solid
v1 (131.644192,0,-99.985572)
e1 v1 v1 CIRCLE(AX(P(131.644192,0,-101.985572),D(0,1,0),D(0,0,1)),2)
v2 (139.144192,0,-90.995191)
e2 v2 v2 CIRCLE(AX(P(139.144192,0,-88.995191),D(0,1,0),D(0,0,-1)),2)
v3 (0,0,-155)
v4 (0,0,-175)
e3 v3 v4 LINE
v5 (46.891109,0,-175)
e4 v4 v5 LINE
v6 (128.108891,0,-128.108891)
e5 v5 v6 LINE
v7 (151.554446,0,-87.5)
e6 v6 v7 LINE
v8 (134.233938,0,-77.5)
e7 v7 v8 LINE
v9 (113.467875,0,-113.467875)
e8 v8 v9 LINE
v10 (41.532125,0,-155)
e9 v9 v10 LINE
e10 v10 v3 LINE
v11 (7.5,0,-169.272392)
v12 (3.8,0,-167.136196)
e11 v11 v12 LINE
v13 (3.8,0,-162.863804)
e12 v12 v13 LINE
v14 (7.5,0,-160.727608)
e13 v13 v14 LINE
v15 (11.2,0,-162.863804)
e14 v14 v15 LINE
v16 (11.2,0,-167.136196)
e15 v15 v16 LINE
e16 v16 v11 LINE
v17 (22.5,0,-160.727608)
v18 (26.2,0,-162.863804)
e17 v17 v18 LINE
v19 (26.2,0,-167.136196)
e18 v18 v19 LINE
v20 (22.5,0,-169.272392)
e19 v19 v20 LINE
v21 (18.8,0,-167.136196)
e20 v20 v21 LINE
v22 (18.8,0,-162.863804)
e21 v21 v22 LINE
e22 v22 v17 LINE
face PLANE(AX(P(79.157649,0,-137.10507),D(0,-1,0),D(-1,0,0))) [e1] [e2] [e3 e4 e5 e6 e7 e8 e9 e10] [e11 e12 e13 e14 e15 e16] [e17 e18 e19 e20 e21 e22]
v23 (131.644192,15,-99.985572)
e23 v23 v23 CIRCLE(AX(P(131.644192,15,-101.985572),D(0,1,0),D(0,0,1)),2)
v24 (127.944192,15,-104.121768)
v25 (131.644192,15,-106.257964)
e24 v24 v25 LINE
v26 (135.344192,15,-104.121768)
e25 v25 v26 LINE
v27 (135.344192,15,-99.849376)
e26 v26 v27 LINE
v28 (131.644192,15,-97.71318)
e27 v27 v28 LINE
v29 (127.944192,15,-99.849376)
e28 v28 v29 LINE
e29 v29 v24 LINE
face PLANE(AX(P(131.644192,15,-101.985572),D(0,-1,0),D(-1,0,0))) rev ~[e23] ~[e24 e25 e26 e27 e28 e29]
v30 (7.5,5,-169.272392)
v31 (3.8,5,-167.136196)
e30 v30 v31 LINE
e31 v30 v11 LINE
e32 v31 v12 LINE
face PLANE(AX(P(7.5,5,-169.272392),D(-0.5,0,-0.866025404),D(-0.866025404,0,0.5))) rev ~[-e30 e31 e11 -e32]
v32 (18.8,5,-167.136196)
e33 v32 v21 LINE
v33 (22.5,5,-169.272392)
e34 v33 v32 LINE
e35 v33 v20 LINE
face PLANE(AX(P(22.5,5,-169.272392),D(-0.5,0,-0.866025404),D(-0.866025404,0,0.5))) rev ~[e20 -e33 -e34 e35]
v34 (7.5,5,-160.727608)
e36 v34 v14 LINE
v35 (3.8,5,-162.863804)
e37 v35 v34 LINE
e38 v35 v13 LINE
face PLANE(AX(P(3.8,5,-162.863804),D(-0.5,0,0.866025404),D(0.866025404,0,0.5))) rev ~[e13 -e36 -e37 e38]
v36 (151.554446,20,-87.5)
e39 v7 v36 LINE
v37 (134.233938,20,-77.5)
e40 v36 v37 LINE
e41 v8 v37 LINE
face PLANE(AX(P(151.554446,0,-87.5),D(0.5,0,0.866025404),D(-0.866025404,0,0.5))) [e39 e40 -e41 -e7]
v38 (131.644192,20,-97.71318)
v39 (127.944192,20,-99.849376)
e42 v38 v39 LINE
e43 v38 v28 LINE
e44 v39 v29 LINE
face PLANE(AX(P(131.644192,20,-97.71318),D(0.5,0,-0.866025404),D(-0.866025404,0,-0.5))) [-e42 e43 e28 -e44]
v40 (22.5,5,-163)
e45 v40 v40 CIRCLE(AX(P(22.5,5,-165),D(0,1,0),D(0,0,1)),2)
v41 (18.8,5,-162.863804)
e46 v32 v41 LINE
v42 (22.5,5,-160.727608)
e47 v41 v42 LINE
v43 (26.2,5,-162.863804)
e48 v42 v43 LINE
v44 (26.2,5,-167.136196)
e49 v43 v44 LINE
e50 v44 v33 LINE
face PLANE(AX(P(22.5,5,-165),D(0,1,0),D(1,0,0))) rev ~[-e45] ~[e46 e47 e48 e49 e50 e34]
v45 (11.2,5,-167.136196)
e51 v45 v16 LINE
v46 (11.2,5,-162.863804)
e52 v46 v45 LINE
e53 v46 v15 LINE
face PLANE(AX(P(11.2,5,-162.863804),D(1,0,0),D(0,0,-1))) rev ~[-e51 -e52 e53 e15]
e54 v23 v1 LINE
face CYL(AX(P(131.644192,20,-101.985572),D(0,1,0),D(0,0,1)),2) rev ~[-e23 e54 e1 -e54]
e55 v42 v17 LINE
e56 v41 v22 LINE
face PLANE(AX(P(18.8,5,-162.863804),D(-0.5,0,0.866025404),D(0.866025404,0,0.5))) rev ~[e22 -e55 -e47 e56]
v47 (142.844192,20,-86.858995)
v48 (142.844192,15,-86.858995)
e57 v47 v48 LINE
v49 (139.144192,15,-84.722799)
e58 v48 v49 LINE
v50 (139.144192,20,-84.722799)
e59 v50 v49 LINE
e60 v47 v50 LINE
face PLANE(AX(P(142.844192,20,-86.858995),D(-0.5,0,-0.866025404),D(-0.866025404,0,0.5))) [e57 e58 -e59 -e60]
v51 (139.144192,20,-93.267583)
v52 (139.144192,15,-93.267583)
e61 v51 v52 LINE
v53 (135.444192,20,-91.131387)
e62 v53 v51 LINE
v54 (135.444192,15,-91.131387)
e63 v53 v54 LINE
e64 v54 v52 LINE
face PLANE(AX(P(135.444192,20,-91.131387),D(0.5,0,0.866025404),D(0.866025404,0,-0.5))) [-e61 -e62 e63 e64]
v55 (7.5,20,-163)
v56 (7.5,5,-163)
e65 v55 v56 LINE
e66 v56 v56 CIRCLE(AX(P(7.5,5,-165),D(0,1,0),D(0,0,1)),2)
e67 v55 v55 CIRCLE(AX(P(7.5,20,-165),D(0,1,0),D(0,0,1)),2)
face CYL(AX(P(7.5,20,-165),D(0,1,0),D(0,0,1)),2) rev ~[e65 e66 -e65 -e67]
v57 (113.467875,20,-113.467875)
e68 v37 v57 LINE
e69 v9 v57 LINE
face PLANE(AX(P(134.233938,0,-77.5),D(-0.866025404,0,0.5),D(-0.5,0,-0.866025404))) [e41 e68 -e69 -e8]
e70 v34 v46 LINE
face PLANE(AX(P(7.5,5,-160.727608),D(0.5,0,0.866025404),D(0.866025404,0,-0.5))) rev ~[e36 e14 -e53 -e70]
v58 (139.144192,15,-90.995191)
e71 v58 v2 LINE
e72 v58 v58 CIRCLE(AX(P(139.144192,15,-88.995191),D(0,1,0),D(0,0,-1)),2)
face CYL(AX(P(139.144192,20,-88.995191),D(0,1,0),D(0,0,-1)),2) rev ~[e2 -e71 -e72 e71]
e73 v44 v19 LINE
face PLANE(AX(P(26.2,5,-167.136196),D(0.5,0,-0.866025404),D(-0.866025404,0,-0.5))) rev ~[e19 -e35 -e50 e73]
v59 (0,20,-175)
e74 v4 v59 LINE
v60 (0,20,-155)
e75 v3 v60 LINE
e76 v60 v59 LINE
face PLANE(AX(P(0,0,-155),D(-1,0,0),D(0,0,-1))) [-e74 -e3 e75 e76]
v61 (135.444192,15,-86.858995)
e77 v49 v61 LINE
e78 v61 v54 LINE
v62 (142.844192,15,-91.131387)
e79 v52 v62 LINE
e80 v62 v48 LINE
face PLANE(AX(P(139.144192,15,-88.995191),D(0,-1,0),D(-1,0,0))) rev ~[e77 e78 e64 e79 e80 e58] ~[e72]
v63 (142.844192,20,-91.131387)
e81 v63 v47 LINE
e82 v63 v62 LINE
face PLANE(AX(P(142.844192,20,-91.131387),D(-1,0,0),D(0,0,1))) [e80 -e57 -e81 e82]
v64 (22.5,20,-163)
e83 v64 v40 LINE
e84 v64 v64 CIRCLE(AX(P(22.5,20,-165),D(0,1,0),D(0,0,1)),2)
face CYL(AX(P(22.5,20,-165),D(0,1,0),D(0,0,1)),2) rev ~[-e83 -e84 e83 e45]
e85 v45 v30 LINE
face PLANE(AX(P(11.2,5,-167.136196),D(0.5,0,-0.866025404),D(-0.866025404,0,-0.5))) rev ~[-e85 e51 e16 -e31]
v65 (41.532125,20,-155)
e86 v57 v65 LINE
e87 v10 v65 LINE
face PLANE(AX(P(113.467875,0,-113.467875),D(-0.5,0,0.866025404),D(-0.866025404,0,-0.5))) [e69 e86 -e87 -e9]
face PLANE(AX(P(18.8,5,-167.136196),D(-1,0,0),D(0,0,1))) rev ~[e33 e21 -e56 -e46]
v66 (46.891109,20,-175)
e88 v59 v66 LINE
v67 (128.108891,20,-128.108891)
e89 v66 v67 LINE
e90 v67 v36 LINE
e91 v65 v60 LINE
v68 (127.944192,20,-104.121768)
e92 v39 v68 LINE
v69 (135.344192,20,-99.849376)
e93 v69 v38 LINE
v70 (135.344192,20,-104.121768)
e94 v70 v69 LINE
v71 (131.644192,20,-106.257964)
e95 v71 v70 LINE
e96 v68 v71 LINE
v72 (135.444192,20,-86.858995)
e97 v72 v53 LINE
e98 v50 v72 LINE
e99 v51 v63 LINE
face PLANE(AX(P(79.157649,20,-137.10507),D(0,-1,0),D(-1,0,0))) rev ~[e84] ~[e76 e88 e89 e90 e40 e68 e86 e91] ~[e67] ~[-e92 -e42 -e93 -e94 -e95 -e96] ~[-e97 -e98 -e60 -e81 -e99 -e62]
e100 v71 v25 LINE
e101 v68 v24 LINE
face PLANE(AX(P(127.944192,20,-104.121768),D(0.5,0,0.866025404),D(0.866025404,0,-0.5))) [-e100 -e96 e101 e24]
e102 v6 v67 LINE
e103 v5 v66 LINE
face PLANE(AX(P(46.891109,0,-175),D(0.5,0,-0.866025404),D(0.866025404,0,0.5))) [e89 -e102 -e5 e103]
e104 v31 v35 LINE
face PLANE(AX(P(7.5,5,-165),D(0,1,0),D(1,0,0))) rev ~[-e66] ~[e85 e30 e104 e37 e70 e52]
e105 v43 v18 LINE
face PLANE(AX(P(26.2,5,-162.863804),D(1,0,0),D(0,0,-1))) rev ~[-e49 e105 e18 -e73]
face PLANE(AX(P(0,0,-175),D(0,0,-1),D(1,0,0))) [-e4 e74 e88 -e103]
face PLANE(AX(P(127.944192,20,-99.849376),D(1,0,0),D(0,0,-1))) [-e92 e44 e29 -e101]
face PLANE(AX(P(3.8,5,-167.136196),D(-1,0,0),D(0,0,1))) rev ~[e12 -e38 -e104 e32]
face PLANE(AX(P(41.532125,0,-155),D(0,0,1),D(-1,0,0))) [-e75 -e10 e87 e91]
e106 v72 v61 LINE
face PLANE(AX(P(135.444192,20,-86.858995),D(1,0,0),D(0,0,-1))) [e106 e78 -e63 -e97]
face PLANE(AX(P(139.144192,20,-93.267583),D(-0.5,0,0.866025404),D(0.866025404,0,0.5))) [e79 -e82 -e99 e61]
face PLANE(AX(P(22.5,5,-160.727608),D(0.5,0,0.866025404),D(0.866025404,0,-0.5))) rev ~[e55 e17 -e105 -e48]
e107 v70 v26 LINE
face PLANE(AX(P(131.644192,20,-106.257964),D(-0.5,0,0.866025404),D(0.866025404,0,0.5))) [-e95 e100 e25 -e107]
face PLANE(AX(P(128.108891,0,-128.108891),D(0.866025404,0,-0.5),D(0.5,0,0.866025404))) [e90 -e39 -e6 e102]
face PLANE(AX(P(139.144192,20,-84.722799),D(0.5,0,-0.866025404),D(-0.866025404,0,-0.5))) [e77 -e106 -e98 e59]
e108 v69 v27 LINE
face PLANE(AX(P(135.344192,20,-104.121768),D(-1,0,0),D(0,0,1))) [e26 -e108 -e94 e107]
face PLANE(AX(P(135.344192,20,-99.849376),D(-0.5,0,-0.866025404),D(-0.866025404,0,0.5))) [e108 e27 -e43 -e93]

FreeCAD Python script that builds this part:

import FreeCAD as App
import Part
import Sketcher

V = App.Vector
Q = App.Units.Quantity

doc = App.newDocument("Part")
body = doc.addObject("PartDesign::Body", "Body")

# Sketch on XZ plane
sketch1 = body.newObject("Sketcher::SketchObject", "Sketch")
sketch1.AttachmentSupport = (doc.getObject("XZ_Plane"), [""])
sketch1.MapMode = "FlatFace"
sketch1.addGeometry([
    Part.LineSegment(V(0, -175, 0), V(0, -155, 0)),  # 0
    Part.LineSegment(V(0, -155, 0), V(42, -155, 0)),  # 1
    Part.LineSegment(V(42, -155, 0), V(113, -113, 0)),  # 2
    Part.LineSegment(V(113, -113, 0), V(134, -78, 0)),  # 3
    Part.LineSegment(V(134, -78, 0), V(152, -88, 0)),  # 4
    Part.LineSegment(V(152, -88, 0), V(128, -128, 0)),  # 5
    Part.LineSegment(V(128, -128, 0), V(47, -175, 0)),  # 6
    Part.LineSegment(V(47, -175, 0), V(0, -175, 0)),  # 7
], False)
sketch1.addConstraint([
    Sketcher.Constraint("Coincident", 0, 2, 1, 1),
    Sketcher.Constraint("Coincident", 1, 2, 2, 1),
    Sketcher.Constraint("Coincident", 2, 2, 3, 1),
    Sketcher.Constraint("Coincident", 3, 2, 4, 1),
    Sketcher.Constraint("Coincident", 4, 2, 5, 1),
    Sketcher.Constraint("Coincident", 5, 2, 6, 1),
    Sketcher.Constraint("Coincident", 6, 2, 7, 1),
    Sketcher.Constraint("Coincident", 7, 2, 0, 1),
    Sketcher.Constraint("Vertical", 0),
    Sketcher.Constraint("Horizontal", 1),
    Sketcher.Constraint("Horizontal", 7),
    Sketcher.Constraint("PointOnObject", 0, 2, -2),
    Sketcher.Constraint("Perpendicular", 3, 4),
    Sketcher.Constraint("Perpendicular", 4, 5),
    Sketcher.Constraint("Parallel", 2, 6),
    Sketcher.Constraint("DistanceY", 0, 1, 0, 2, Q("20 mm")),
    Sketcher.Constraint("Angle", 2, Q("30 deg")),
    Sketcher.Constraint("Angle", 3, Q("60 deg")),
    Sketcher.Constraint("Distance", 4, Q("20 mm")),
    Sketcher.Constraint("DistanceY", 0, 2, -1, 1, Q("155 mm")),
    Sketcher.Constraint("DistanceY", 3, 2, -1, 1, Q("77.5 mm")),
    Sketcher.Constraint("DistanceX", 7, 2, 7, 1, Q("46.891109 mm")),
    Sketcher.Constraint("Distance", 2, Q("83.06425 mm")),
    Sketcher.Constraint("Distance", 5, Q("46.891109 mm")),
])
pad1 = body.newObject("PartDesign::Pad", "Pad")
pad1.Profile = sketch1
pad1.Length = 20
pad1.Reversed = True

# Sketch on XZ plane
sketch2 = body.newObject("Sketcher::SketchObject", "Sketch001")
sketch2.AttachmentSupport = (doc.getObject("XZ_Plane"), [""])
sketch2.MapMode = "FlatFace"
sketch2.AttachmentOffset = App.Placement(V(0, 0, -20), App.Rotation())
sketch2.addGeometry([
    Part.Circle(V(7.5, -165, 0), V(0, 0, 1), 2),
    Part.Circle(V(22.5, -165, 0), V(0, 0, 1), 2),
    Part.Circle(V(131.6, -102, 0), V(0, 0, 1), 2),
    Part.Circle(V(139.1, -89, 0), V(0, 0, 1), 2),
], False)
sketch2.addConstraint([
    Sketcher.Constraint("Equal", 0, 1),
    Sketcher.Constraint("Equal", 1, 2),
    Sketcher.Constraint("Equal", 2, 3),
    Sketcher.Constraint("Horizontal", 0, 3, 1, 3),
    Sketcher.Constraint("Diameter", 0, Q("4 mm")),
    Sketcher.Constraint("DistanceY", 0, 3, -1, 1, Q("165 mm")),
    Sketcher.Constraint("DistanceX", 0, 3, 1, 3, Q("15 mm")),
    Sketcher.Constraint("DistanceX", -1, 1, 0, 3, Q("7.5 mm")),
    Sketcher.Constraint("DistanceX", 2, 3, 3, 3, Q("7.5 mm")),
    Sketcher.Constraint("DistanceX", -1, 1, 2, 3, Q("131.644192 mm")),
    Sketcher.Constraint("DistanceY", 2, 3, -1, 1, Q("101.985572 mm")),
    Sketcher.Constraint("DistanceY", 3, 3, -1, 1, Q("88.995191 mm")),
])
pocket1 = body.newObject("PartDesign::Pocket", "Pocket")
pocket1.Profile = sketch2
pocket1.Type = "ThroughAll"
pocket1.Reversed = True

# Sketch on XZ plane
sketch3 = body.newObject("Sketcher::SketchObject", "Sketch002")
sketch3.AttachmentSupport = (doc.getObject("XZ_Plane"), [""])
sketch3.MapMode = "FlatFace"
sketch3.AttachmentOffset = App.Placement(V(0, 0, -5), App.Rotation())
sketch3.addGeometry([
    Part.LineSegment(V(3.8, -167.1, 0), V(3.8, -162.9, 0)),  # 0
    Part.LineSegment(V(3.8, -162.9, 0), V(7.5, -160.7, 0)),  # 1
    Part.LineSegment(V(7.5, -160.7, 0), V(11.2, -162.9, 0)),  # 2
    Part.LineSegment(V(11.2, -162.9, 0), V(11.2, -167.1, 0)),  # 3
    Part.LineSegment(V(11.2, -167.1, 0), V(7.5, -169.3, 0)),  # 4
    Part.LineSegment(V(7.5, -169.3, 0), V(3.8, -167.1, 0)),  # 5
    Part.Circle(V(7.5, -165, 0), V(0, 0, 1), 2),  # 6
    Part.LineSegment(V(26.2, -162.9, 0), V(26.2, -167.1, 0)),  # 7
    Part.LineSegment(V(26.2, -167.1, 0), V(22.5, -169.3, 0)),  # 8
    Part.LineSegment(V(22.5, -169.3, 0), V(18.8, -167.1, 0)),  # 9
    Part.LineSegment(V(18.8, -167.1, 0), V(18.8, -162.9, 0)),  # 10
    Part.LineSegment(V(18.8, -162.9, 0), V(22.5, -160.7, 0)),  # 11
    Part.LineSegment(V(22.5, -160.7, 0), V(26.2, -162.9, 0)),  # 12
    Part.Circle(V(22.5, -165, 0), V(0, 0, 1), 2),  # 13
], False)
sketch3.addConstraint([
    Sketcher.Constraint("Coincident", 0, 2, 1, 1),
    Sketcher.Constraint("Coincident", 1, 2, 2, 1),
    Sketcher.Constraint("Coincident", 2, 2, 3, 1),
    Sketcher.Constraint("Coincident", 3, 2, 4, 1),
    Sketcher.Constraint("Coincident", 4, 2, 5, 1),
    Sketcher.Constraint("Coincident", 5, 2, 0, 1),
    Sketcher.Constraint("Coincident", 7, 2, 8, 1),
    Sketcher.Constraint("Coincident", 8, 2, 9, 1),
    Sketcher.Constraint("Coincident", 9, 2, 10, 1),
    Sketcher.Constraint("Coincident", 10, 2, 11, 1),
    Sketcher.Constraint("Coincident", 11, 2, 12, 1),
    Sketcher.Constraint("Coincident", 12, 2, 7, 1),
    Sketcher.Constraint("Vertical", 0),
    Sketcher.Constraint("Vertical", 3),
    Sketcher.Constraint("Vertical", 7),
    Sketcher.Constraint("Vertical", 10),
    Sketcher.Constraint("Equal", 6, 13),
    Sketcher.Constraint("Parallel", 1, 4),
    Sketcher.Constraint("Parallel", 2, 5),
    Sketcher.Constraint("Parallel", 4, 8),
    Sketcher.Constraint("Parallel", 5, 9),
    Sketcher.Constraint("Parallel", 8, 11),
    Sketcher.Constraint("Parallel", 9, 12),
    Sketcher.Constraint("Horizontal", 6, 3, 13, 3),
    Sketcher.Constraint("Horizontal", 0, 2, 2, 2),
    Sketcher.Constraint("Horizontal", 3, 2, 5, 2),
    Sketcher.Constraint("Horizontal", 5, 2, 7, 2),
    Sketcher.Constraint("Horizontal", 4, 2, 8, 2),
    Sketcher.Constraint("Horizontal", 7, 2, 9, 2),
    Sketcher.Constraint("Horizontal", 2, 2, 10, 2),
    Sketcher.Constraint("Horizontal", 1, 2, 11, 2),
    Sketcher.Constraint("Vertical", 6, 3, 1, 2),
    Sketcher.Constraint("Vertical", 1, 2, 4, 2),
    Sketcher.Constraint("Vertical", 13, 3, 8, 2),
    Sketcher.Constraint("Diameter", 6, Q("4 mm")),
    Sketcher.Constraint("Angle", 1, Q("30 deg")),
    Sketcher.Constraint("DistanceY", 6, 3, -1, 1, Q("165 mm")),
    Sketcher.Constraint("DistanceX", 6, 3, 13, 3, Q("15 mm")),
    Sketcher.Constraint("DistanceX", -1, 1, 6, 3, Q("7.5 mm")),
    Sketcher.Constraint("DistanceX", -1, 1, 0, 2, Q("3.8 mm")),
    Sketcher.Constraint("DistanceY", 0, 1, 0, 2, Q("4.272392 mm")),
    Sketcher.Constraint("DistanceY", 1, 2, -1, 1, Q("160.727608 mm")),
])
pocket2 = body.newObject("PartDesign::Pocket", "Pocket001")
pocket2.Profile = sketch3
pocket2.Length = 5
pocket2.Reversed = True

# Sketch on XZ plane
sketch4 = body.newObject("Sketcher::SketchObject", "Sketch003")
sketch4.AttachmentSupport = (doc.getObject("XZ_Plane"), [""])
sketch4.MapMode = "FlatFace"
sketch4.AttachmentOffset = App.Placement(V(0, 0, -20), App.Rotation())
sketch4.addGeometry([
    Part.LineSegment(V(135.3, -99.8, 0), V(135.3, -104.1, 0)),  # 0
    Part.LineSegment(V(135.3, -104.1, 0), V(131.6, -106.3, 0)),  # 1
    Part.LineSegment(V(131.6, -106.3, 0), V(127.9, -104.1, 0)),  # 2
    Part.LineSegment(V(127.9, -104.1, 0), V(127.9, -99.8, 0)),  # 3
    Part.LineSegment(V(127.9, -99.8, 0), V(131.6, -97.7, 0)),  # 4
    Part.LineSegment(V(131.6, -97.7, 0), V(135.3, -99.8, 0)),  # 5
    Part.Circle(V(131.6, -102, 0), V(0, 0, 1), 2),  # 6
    Part.LineSegment(V(135.4, -91.1, 0), V(135.4, -86.9, 0)),  # 7
    Part.LineSegment(V(135.4, -86.9, 0), V(139.1, -84.7, 0)),  # 8
    Part.LineSegment(V(139.1, -84.7, 0), V(142.8, -86.9, 0)),  # 9
    Part.LineSegment(V(142.8, -86.9, 0), V(142.8, -91.1, 0)),  # 10
    Part.LineSegment(V(142.8, -91.1, 0), V(139.1, -93.3, 0)),  # 11
    Part.LineSegment(V(139.1, -93.3, 0), V(135.4, -91.1, 0)),  # 12
    Part.Circle(V(139.1, -89, 0), V(0, 0, 1), 2),  # 13
], False)
sketch4.addConstraint([
    Sketcher.Constraint("Coincident", 0, 2, 1, 1),
    Sketcher.Constraint("Coincident", 1, 2, 2, 1),
    Sketcher.Constraint("Coincident", 2, 2, 3, 1),
    Sketcher.Constraint("Coincident", 3, 2, 4, 1),
    Sketcher.Constraint("Coincident", 4, 2, 5, 1),
    Sketcher.Constraint("Coincident", 5, 2, 0, 1),
    Sketcher.Constraint("Coincident", 7, 2, 8, 1),
    Sketcher.Constraint("Coincident", 8, 2, 9, 1),
    Sketcher.Constraint("Coincident", 9, 2, 10, 1),
    Sketcher.Constraint("Coincident", 10, 2, 11, 1),
    Sketcher.Constraint("Coincident", 11, 2, 12, 1),
    Sketcher.Constraint("Coincident", 12, 2, 7, 1),
    Sketcher.Constraint("Vertical", 0),
    Sketcher.Constraint("Vertical", 3),
    Sketcher.Constraint("Vertical", 7),
    Sketcher.Constraint("Vertical", 10),
    Sketcher.Constraint("Equal", 6, 13),
    Sketcher.Constraint("Parallel", 1, 4),
    Sketcher.Constraint("Parallel", 2, 5),
    Sketcher.Constraint("Parallel", 4, 8),
    Sketcher.Constraint("Parallel", 5, 9),
    Sketcher.Constraint("Parallel", 8, 11),
    Sketcher.Constraint("Parallel", 9, 12),
    Sketcher.Constraint("Horizontal", 0, 2, 2, 2),
    Sketcher.Constraint("Horizontal", 3, 2, 5, 2),
    Sketcher.Constraint("Horizontal", 7, 2, 9, 2),
    Sketcher.Constraint("Horizontal", 10, 2, 12, 2),
    Sketcher.Constraint("Vertical", 6, 3, 1, 2),
    Sketcher.Constraint("Vertical", 1, 2, 4, 2),
    Sketcher.Constraint("Vertical", 13, 3, 8, 2),
    Sketcher.Constraint("Equal", 3, 7),
    Sketcher.Constraint("Equal", 5, 8),
    Sketcher.Constraint("Diameter", 6, Q("4 mm")),
    Sketcher.Constraint("Angle", 1, Q("-150 deg")),
    Sketcher.Constraint("DistanceX", 6, 3, 13, 3, Q("7.5 mm")),
    Sketcher.Constraint("DistanceX", 6, 3, 0, 2, Q("3.7 mm")),
    Sketcher.Constraint("DistanceY", 0, 2, 0, 1, Q("4.272392 mm")),
    Sketcher.Constraint("DistanceY", 8, 2, -1, 1, Q("84.722799 mm")),
    Sketcher.Constraint("DistanceX", -1, 1, 6, 3, Q("131.644192 mm")),
    Sketcher.Constraint("DistanceY", 6, 3, -1, 1, Q("101.985572 mm")),
    Sketcher.Constraint("DistanceY", 13, 3, -1, 1, Q("88.995191 mm")),
    Sketcher.Constraint("DistanceY", 4, 2, -1, 1, Q("97.71318 mm")),
])
pocket3 = body.newObject("PartDesign::Pocket", "Pocket002")
pocket3.Profile = sketch4
pocket3.Length = 5
pocket3.Reversed = True

doc.recompute()
